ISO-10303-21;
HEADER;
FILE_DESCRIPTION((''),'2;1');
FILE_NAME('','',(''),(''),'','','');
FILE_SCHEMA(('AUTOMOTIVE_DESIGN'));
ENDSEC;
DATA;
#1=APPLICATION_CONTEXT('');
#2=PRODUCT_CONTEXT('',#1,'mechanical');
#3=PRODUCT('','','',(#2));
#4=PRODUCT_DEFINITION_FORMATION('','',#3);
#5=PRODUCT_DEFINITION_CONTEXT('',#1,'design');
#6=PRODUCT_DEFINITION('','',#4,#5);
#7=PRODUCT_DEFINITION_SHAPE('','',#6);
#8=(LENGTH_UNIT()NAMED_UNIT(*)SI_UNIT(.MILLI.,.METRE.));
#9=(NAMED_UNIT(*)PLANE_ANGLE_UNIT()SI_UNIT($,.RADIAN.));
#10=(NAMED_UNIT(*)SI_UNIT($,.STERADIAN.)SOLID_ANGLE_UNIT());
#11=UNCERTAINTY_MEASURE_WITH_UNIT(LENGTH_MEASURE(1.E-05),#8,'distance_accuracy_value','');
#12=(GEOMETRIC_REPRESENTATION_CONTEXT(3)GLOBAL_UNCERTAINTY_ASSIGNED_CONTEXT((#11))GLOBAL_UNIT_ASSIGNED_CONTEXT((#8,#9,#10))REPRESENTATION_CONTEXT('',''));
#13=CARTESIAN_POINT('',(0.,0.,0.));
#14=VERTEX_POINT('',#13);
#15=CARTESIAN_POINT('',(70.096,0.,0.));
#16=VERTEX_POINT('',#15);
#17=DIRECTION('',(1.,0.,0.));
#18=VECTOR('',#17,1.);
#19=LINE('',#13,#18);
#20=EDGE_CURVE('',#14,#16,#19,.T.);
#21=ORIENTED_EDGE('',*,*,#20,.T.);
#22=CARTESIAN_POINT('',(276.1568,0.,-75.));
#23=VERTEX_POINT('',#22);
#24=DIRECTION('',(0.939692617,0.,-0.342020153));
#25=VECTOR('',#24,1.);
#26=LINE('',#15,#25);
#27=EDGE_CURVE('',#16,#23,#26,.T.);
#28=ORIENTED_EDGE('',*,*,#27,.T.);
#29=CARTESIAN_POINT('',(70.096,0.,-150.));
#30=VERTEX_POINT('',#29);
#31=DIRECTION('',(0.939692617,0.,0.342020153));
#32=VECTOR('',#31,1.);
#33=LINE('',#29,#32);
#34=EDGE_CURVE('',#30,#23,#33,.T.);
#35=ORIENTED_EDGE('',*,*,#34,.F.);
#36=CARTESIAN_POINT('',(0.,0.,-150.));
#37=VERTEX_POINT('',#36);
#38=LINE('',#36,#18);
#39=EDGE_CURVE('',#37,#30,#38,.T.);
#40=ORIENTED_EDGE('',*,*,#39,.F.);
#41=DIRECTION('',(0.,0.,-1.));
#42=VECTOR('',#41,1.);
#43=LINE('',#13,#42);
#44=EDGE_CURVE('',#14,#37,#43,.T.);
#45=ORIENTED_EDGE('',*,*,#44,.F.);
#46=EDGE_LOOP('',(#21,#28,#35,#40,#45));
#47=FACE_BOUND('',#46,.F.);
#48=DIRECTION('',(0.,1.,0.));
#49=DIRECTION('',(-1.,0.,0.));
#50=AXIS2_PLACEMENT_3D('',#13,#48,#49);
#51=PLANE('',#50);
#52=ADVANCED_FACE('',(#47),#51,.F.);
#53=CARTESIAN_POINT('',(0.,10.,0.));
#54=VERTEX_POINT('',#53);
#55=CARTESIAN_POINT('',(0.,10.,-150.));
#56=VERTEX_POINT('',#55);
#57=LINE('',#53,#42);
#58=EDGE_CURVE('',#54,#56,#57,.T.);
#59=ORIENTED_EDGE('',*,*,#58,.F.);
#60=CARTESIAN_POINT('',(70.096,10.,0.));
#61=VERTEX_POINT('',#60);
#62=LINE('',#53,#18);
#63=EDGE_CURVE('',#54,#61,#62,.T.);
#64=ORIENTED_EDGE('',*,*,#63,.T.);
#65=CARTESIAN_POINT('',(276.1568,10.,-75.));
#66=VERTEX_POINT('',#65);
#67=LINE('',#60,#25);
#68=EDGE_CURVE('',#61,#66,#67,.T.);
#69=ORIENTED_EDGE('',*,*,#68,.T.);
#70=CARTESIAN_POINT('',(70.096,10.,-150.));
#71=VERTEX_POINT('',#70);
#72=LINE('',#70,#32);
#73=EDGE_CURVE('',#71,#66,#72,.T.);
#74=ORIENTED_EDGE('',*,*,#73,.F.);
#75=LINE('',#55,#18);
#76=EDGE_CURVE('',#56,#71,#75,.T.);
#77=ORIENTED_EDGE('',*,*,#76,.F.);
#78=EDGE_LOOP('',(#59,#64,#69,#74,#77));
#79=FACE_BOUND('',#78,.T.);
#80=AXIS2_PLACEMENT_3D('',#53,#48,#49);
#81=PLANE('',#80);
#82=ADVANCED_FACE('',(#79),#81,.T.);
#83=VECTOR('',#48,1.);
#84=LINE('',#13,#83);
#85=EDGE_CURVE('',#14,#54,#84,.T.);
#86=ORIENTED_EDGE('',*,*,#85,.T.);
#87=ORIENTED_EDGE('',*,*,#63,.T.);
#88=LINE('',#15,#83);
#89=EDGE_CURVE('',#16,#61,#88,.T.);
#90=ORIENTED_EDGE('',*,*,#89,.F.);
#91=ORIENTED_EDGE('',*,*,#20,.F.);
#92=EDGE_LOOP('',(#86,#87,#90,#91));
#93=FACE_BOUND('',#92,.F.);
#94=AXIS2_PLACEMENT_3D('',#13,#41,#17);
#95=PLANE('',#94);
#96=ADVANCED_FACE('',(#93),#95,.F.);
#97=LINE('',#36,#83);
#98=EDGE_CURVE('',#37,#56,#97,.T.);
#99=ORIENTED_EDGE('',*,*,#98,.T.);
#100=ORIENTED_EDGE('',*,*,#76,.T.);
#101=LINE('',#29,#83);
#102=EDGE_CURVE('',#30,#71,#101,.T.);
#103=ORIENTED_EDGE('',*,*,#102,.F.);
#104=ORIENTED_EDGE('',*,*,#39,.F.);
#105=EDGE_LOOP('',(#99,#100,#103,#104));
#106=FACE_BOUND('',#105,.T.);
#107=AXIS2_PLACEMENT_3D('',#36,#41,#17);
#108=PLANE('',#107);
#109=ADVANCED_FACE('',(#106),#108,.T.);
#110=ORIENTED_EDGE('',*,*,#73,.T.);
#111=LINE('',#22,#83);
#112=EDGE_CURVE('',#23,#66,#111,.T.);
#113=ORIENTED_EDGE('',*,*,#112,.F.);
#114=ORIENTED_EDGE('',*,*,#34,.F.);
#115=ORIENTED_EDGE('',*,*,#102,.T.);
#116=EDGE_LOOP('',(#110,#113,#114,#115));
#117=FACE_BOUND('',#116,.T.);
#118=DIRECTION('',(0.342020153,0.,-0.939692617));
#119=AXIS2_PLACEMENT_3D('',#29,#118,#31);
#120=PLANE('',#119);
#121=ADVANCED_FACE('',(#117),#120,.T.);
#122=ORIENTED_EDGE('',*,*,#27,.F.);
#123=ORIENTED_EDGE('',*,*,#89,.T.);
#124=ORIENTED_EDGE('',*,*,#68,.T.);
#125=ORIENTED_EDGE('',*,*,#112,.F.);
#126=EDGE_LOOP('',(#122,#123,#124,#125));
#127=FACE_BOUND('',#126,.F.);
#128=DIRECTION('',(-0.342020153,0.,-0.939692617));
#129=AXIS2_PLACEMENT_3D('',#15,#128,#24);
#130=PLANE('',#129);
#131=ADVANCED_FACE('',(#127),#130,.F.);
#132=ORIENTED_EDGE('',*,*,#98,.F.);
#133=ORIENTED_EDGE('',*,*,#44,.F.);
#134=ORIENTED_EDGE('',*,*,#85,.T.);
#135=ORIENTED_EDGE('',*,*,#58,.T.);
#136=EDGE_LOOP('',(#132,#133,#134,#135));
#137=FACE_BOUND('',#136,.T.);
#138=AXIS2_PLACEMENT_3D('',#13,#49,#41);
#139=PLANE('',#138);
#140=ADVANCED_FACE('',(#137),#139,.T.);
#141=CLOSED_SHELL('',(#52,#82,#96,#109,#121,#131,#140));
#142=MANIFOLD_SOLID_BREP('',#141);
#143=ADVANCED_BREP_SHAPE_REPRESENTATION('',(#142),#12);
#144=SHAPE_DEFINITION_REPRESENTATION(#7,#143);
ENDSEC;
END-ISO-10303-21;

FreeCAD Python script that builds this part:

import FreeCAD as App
import Part
import Sketcher
from FreeCAD import Vector
Q = App.Units.Quantity


def add_polygon(sketch, points):
    """Adds a closed chain of lines whose ends are joined by coincident constraints."""
    first, n = sketch.GeometryCount, len(points)
    for a, b in zip(points, points[1:] + points[:1]):
        sketch.addGeometry(Part.LineSegment(App.Vector(*a, 0), App.Vector(*b, 0)), False)
    for i in range(n):
        sketch.addConstraint(Sketcher.Constraint("Coincident", first + i, 2, first + (i + 1) % n, 1))

doc = App.newDocument("Part")
body = doc.addObject("PartDesign::Body", "Body")

sketch1 = doc.addObject("Sketcher::SketchObject", "Sketch")
body.addObject(sketch1)
sketch1.AttachmentSupport = (doc.XZ_Plane, [""])
sketch1.MapMode = "FlatFace"
add_polygon(sketch1, [(0, -150), (0, 0), (70, 0), (276, -75), (70, -150)])
sketch1.addConstraint(Sketcher.Constraint("Vertical", 0))
sketch1.addConstraint(Sketcher.Constraint("Horizontal", 1))
sketch1.addConstraint(Sketcher.Constraint("Horizontal", 4))
sketch1.addConstraint(Sketcher.Constraint("Coincident", 0, 2, -1, 1))
sketch1.addConstraint(Sketcher.Constraint("Vertical", 1, 2, 3, 2))
sketch1.addConstraint(Sketcher.Constraint("Equal", 2, 3))
sketch1.addConstraint(Sketcher.Constraint("DistanceY", 0, 1, 0, 2, Q("150 mm")))
sketch1.addConstraint(Sketcher.Constraint("Angle", 3, Q("-160 deg")))
sketch1.addConstraint(Sketcher.Constraint("DistanceX", 1, 1, 1, 2, Q("70.096 mm")))
pad1 = doc.addObject("PartDesign::Pad", "Pad")
body.addObject(pad1)
pad1.Profile = sketch1
pad1.Length = 10
pad1.Reversed = True

doc.recompute()
